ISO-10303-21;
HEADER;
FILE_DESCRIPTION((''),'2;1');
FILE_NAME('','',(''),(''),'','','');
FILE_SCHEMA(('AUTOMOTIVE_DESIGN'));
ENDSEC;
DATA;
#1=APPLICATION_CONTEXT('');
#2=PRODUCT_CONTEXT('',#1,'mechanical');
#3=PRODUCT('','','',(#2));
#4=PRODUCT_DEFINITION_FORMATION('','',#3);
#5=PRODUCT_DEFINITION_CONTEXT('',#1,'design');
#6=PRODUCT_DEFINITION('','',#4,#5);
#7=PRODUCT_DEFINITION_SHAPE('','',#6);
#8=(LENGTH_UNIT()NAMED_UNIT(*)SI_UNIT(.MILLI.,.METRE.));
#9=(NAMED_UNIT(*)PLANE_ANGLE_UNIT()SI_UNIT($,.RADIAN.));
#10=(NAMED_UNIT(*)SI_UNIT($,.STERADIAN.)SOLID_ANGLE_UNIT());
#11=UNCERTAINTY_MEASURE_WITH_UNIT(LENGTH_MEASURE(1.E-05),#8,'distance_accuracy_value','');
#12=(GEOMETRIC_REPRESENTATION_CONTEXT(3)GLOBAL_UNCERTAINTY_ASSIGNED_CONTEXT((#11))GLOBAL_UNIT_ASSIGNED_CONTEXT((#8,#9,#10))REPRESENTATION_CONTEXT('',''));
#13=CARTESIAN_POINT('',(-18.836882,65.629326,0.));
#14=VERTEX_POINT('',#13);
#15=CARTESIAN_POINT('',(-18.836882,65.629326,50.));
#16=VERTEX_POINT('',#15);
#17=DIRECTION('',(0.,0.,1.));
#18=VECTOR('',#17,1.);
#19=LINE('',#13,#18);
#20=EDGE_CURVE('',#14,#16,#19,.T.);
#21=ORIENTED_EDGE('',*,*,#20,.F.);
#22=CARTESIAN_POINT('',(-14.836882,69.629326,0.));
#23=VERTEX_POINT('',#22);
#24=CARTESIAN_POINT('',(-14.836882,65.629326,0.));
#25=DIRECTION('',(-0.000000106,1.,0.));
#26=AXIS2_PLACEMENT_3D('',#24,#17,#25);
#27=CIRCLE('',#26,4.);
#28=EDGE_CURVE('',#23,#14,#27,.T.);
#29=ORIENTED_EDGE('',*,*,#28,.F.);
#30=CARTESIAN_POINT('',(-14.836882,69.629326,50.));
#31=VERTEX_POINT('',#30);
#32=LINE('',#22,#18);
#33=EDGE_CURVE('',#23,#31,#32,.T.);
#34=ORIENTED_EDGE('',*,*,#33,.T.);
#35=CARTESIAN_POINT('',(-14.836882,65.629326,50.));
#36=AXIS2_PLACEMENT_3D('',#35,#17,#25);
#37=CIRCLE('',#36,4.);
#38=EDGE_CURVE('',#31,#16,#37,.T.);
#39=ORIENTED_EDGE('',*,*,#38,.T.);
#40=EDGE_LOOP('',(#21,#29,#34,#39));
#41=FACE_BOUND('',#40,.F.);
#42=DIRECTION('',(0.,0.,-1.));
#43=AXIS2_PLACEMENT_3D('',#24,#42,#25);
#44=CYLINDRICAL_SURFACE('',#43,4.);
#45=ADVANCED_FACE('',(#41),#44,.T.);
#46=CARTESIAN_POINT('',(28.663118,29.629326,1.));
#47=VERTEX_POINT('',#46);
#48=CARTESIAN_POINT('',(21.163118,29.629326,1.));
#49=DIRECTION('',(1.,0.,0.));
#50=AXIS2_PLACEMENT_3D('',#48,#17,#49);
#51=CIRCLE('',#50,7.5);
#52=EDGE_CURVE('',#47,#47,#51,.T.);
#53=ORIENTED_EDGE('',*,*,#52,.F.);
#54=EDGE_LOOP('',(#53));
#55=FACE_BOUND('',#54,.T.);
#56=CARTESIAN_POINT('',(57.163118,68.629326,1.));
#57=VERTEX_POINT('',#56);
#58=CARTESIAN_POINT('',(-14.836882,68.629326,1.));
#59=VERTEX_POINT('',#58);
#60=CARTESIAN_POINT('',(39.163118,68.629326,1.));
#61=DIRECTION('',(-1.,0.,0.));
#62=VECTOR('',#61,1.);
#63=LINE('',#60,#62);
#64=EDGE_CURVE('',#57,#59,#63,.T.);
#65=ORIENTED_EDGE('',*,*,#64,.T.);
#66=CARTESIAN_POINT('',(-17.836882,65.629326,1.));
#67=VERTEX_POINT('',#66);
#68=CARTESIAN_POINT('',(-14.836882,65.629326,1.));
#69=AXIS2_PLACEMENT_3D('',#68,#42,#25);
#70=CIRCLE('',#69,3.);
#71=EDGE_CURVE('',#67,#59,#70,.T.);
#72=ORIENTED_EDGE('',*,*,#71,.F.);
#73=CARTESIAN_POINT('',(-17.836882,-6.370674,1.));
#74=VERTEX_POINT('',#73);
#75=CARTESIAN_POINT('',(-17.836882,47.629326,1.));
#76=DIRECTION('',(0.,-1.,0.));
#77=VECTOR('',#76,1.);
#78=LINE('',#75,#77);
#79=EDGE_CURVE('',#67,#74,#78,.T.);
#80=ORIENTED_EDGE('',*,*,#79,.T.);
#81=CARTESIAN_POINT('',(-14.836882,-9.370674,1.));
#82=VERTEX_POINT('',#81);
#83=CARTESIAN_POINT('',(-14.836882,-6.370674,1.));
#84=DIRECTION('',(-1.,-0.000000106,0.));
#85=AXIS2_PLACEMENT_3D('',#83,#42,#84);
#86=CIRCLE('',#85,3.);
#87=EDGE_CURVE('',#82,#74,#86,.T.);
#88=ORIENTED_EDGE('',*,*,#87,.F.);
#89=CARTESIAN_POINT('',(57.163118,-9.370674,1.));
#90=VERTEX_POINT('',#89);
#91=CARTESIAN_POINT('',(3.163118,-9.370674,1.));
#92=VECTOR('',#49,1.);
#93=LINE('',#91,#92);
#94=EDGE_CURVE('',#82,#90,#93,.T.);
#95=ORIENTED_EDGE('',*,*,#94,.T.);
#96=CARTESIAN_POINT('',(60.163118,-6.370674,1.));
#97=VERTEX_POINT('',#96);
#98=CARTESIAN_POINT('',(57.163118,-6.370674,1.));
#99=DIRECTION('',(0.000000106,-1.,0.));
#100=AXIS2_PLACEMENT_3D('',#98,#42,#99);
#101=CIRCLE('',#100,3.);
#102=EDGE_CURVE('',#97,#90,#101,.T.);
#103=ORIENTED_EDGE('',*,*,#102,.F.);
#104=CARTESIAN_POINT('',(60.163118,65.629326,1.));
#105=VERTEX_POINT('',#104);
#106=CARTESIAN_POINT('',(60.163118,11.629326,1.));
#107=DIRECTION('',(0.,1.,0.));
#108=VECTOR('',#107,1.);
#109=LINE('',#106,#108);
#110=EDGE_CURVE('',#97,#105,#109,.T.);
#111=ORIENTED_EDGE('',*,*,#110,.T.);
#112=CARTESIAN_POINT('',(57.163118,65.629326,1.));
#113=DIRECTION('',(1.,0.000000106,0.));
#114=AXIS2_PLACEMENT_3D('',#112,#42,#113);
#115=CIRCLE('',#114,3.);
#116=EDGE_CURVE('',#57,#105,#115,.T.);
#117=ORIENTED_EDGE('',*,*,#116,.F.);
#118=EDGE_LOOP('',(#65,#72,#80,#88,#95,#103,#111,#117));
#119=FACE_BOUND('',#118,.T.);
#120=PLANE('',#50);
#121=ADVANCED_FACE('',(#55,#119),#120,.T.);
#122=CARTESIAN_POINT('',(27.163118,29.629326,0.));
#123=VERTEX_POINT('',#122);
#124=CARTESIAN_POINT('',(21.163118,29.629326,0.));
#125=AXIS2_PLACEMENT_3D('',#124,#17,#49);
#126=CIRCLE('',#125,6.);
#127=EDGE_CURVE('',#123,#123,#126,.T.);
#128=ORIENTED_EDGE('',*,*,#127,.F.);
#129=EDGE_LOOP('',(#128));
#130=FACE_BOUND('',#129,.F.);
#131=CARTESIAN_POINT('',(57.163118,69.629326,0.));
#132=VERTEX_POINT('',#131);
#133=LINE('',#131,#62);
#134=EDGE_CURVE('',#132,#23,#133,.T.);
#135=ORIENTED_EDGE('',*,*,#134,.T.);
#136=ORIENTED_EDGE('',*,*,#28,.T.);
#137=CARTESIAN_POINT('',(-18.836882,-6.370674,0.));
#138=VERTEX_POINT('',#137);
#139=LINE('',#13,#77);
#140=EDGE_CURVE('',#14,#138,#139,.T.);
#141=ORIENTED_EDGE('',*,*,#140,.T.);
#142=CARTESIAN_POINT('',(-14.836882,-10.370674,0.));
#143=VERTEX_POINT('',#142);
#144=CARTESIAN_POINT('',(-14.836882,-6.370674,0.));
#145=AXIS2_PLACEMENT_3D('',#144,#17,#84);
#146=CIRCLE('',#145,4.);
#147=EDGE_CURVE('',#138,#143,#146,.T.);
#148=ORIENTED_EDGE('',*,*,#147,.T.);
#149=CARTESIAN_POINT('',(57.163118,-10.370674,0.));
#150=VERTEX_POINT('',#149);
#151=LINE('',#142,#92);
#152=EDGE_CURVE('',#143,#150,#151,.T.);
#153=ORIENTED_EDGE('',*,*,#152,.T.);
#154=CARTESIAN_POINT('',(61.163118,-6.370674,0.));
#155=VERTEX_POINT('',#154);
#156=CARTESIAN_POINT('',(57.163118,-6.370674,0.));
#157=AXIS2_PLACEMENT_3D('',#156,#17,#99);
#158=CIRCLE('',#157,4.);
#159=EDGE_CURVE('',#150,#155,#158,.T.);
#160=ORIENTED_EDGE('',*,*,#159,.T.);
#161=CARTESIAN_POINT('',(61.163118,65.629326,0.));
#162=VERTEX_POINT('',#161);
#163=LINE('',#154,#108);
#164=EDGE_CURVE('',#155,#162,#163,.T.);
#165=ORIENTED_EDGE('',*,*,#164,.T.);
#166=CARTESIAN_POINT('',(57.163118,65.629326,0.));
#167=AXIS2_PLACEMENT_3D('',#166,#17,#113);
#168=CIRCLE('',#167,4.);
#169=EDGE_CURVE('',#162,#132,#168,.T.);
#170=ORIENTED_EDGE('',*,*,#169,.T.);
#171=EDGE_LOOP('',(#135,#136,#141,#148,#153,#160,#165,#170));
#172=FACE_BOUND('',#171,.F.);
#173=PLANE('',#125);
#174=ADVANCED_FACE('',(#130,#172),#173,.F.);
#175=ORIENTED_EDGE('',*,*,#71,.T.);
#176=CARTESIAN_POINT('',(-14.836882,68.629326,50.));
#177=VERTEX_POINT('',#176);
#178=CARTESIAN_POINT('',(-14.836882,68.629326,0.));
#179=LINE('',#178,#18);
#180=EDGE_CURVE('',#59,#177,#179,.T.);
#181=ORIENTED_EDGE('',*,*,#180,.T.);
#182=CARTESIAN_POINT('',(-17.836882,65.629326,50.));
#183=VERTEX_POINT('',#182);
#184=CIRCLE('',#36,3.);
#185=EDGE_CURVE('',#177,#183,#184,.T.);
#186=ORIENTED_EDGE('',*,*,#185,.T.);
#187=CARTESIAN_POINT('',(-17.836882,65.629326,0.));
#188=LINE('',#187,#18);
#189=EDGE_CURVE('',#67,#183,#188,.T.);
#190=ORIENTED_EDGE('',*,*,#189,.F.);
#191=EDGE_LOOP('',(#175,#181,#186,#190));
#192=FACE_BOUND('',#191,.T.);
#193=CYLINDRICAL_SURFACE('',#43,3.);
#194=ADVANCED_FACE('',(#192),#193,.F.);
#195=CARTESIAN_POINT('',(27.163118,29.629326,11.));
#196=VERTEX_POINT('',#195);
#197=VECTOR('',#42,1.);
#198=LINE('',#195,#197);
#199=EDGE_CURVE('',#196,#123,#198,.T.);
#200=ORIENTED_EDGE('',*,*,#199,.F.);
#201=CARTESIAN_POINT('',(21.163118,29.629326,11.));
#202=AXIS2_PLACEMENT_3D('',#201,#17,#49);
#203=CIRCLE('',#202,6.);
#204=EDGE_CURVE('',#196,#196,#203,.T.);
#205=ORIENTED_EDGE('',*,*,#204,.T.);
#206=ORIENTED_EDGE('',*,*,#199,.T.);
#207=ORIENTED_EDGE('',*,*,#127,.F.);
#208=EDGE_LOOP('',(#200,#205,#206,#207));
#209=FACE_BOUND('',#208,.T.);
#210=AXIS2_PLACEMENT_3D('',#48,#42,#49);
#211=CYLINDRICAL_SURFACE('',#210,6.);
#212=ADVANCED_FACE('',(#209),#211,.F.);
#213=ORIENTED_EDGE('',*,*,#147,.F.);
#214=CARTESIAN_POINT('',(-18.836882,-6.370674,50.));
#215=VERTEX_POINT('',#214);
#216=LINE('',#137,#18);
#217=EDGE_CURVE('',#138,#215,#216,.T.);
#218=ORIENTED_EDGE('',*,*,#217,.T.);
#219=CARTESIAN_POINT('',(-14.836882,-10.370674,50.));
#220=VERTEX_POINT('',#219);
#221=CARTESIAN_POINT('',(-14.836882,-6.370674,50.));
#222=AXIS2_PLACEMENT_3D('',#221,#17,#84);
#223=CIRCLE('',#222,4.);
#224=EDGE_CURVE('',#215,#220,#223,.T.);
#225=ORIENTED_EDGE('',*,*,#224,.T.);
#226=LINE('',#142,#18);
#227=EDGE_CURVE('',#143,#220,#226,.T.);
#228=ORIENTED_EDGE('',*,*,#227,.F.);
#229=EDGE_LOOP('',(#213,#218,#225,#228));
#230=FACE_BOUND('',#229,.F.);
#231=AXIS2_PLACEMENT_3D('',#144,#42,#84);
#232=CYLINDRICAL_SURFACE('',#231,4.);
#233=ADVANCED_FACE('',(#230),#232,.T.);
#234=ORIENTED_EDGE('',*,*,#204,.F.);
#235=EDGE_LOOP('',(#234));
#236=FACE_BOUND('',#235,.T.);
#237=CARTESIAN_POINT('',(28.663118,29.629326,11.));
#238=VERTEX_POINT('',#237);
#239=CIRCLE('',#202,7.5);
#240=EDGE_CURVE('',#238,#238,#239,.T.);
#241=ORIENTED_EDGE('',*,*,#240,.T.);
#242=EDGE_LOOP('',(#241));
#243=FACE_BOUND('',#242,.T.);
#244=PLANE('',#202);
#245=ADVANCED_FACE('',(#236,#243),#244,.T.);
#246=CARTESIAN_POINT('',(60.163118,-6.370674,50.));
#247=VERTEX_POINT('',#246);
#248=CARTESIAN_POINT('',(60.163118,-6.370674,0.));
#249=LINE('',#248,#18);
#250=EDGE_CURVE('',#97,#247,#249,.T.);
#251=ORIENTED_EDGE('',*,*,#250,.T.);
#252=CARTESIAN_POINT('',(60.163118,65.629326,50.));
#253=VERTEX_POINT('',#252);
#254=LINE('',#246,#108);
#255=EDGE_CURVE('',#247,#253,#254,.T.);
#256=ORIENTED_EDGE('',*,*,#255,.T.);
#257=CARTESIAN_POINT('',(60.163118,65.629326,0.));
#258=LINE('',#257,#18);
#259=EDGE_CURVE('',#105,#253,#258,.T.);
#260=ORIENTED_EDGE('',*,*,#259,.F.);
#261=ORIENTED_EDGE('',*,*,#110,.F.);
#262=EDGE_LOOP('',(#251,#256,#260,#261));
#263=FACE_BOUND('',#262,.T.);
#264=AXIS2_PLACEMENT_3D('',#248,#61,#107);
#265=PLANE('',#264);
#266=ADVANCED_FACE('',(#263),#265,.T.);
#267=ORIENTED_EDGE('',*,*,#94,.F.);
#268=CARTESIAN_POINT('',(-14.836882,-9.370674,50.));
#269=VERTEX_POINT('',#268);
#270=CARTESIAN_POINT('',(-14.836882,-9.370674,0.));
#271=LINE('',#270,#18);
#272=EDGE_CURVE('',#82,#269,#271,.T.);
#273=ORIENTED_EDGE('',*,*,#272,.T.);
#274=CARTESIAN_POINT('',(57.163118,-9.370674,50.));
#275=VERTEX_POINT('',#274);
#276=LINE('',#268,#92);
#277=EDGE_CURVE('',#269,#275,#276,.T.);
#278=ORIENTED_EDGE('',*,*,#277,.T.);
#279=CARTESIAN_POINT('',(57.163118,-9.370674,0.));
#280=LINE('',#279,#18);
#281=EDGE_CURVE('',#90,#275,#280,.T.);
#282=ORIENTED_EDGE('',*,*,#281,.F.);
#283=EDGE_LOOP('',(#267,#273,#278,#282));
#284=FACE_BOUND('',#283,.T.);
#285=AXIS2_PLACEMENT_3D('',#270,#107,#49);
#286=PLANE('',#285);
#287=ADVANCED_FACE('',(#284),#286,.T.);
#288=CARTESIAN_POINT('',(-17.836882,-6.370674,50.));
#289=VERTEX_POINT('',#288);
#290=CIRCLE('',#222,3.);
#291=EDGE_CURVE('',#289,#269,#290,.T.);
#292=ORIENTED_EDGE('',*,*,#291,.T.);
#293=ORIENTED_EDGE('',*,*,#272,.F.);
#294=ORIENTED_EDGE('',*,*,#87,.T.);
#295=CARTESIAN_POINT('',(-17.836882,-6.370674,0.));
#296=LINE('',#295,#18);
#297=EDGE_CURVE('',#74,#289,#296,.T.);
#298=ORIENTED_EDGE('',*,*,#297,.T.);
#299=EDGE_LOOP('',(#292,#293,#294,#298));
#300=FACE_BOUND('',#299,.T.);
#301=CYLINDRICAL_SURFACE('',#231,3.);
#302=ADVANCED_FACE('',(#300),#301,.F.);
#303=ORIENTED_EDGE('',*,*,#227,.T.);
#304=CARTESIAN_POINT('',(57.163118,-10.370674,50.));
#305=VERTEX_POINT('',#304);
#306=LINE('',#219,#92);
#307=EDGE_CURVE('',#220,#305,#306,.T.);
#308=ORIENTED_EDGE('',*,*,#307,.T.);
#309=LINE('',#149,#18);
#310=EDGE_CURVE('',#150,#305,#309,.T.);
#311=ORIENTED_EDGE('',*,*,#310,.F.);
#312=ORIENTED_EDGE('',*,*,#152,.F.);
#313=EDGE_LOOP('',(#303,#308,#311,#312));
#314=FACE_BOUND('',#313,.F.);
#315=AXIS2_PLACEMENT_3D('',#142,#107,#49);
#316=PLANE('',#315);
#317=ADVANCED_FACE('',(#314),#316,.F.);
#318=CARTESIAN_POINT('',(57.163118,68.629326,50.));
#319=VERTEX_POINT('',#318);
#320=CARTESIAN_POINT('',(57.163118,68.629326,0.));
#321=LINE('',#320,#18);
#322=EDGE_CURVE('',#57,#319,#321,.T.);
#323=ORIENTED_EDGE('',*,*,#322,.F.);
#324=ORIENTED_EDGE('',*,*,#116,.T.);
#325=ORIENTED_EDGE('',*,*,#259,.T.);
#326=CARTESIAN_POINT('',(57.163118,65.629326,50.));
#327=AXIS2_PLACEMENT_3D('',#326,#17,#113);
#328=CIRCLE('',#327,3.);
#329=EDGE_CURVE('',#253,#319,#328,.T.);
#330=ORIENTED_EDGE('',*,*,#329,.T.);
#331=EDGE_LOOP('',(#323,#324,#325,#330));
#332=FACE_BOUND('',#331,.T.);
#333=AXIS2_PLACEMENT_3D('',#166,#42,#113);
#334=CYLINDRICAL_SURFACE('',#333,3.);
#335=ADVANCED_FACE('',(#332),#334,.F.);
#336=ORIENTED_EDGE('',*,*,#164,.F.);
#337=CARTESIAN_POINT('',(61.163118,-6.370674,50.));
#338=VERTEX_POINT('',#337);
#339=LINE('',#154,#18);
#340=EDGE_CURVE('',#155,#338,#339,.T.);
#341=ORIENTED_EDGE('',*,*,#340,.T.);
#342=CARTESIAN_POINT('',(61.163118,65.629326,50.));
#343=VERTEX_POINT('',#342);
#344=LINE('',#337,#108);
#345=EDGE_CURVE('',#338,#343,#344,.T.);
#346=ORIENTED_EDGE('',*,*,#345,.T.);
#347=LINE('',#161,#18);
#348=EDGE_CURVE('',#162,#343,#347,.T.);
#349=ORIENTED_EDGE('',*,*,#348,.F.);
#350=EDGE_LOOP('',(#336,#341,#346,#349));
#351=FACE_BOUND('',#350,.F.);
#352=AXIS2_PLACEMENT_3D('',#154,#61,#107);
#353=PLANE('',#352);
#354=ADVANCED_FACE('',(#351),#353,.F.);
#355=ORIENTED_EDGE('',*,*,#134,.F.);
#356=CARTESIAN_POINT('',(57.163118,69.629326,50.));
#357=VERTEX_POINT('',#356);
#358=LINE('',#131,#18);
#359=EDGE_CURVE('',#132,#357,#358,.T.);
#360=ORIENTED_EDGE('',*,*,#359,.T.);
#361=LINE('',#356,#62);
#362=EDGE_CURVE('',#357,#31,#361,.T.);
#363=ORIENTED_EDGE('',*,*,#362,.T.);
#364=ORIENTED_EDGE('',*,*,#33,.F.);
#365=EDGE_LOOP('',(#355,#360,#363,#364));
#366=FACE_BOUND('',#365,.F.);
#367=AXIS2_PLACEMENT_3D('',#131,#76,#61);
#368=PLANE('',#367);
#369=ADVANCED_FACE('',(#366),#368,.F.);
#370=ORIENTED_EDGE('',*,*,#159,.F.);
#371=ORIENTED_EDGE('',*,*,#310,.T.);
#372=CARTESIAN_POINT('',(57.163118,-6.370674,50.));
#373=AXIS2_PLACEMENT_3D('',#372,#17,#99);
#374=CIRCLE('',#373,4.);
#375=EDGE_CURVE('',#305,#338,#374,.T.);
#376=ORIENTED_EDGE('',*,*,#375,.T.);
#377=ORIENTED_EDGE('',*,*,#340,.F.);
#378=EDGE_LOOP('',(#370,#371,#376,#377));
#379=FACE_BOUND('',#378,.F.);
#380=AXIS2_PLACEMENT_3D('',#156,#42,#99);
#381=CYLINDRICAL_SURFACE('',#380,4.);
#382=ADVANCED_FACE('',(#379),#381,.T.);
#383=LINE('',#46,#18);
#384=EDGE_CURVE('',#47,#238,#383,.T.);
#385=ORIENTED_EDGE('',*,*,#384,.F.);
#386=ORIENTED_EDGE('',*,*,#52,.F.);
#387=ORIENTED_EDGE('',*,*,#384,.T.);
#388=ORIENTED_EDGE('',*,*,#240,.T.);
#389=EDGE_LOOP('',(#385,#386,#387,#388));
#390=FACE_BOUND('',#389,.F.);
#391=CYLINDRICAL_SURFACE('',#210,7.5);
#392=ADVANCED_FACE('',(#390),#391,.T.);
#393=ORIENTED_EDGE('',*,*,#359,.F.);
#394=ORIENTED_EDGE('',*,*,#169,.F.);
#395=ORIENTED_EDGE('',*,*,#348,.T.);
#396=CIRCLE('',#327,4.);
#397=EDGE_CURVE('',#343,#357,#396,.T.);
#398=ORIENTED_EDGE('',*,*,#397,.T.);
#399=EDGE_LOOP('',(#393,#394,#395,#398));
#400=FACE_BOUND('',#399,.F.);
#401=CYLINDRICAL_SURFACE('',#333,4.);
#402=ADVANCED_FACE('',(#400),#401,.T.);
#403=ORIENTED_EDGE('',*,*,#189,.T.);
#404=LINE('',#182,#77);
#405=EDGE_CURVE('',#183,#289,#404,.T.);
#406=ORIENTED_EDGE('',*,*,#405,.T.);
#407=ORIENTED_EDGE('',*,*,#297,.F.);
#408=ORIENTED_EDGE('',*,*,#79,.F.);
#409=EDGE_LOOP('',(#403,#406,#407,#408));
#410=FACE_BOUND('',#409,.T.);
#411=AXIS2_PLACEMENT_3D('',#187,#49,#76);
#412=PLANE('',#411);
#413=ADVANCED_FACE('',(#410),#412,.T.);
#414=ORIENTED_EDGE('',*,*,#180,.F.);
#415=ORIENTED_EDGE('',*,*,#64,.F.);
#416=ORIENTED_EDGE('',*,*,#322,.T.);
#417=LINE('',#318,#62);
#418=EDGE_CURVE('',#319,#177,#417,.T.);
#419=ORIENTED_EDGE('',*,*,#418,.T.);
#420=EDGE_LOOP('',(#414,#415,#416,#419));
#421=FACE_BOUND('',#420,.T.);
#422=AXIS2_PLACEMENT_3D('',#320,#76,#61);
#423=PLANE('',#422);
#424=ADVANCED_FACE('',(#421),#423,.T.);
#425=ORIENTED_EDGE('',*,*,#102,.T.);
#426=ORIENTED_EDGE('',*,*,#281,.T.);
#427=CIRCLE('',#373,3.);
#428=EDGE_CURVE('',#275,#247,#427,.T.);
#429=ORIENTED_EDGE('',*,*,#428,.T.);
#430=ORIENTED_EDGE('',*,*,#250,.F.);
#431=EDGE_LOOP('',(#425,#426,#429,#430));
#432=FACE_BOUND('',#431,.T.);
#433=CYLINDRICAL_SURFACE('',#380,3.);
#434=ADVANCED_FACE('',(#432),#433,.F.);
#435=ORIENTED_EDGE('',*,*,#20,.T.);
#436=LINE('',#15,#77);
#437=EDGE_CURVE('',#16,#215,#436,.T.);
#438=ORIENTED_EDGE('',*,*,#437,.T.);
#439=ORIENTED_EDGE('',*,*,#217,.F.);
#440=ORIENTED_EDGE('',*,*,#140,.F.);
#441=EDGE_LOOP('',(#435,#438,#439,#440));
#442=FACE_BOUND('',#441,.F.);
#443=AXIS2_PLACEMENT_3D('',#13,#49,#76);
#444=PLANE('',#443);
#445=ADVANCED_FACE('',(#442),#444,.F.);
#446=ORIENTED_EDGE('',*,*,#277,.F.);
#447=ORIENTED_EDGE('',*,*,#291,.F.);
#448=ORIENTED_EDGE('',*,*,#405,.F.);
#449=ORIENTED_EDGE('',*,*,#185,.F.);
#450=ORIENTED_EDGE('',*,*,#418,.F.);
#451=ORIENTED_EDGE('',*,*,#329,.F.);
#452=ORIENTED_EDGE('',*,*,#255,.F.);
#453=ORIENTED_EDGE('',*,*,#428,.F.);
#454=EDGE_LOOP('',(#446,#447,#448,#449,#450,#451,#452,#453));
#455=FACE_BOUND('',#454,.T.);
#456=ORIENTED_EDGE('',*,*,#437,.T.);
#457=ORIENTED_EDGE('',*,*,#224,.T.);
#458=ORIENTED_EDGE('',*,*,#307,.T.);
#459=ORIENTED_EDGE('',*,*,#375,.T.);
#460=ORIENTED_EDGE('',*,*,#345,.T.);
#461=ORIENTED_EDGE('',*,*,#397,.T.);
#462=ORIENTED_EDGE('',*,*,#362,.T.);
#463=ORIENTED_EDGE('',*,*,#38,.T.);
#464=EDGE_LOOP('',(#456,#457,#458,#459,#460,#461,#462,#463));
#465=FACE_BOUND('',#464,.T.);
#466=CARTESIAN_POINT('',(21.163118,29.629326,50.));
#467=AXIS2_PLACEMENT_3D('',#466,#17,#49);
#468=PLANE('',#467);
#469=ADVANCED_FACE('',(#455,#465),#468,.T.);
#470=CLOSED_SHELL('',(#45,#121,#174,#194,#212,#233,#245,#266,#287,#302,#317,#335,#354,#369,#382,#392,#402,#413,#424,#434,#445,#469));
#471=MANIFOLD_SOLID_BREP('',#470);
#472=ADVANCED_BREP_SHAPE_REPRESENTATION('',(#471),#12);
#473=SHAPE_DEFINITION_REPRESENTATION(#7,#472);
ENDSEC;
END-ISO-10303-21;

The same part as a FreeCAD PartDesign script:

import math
import FreeCAD as App
import Part
import Sketcher

V = App.Vector


def faces_at(feature, points):
    """Names of the faces that lie closest to the given points."""
    faces = feature.Shape.Faces
    near = lambda p: min(range(len(faces)), key=lambda i: faces[i].distToShape(Part.Vertex(*p))[0])
    return sorted({f"Face{near(p) + 1}" for p in points})

doc = App.newDocument("Part")
body = doc.addObject("PartDesign::Body", "Body")

sketch1 = body.newObject("Sketcher::SketchObject", "Sketch")
sketch1.AttachmentSupport = (doc.getObject("XY_Plane"), [""])
sketch1.MapMode = "FlatFace"
sketch1.addGeometry([
    Part.LineSegment(V(57.2, 69.6, 0), V(-14.8, 69.6, 0)),
    Part.ArcOfCircle(Part.Circle(V(-14.8, 65.6, 0), V(0, 0, 1), 4), math.radians(90), math.radians(180)),
    Part.LineSegment(V(-18.8, 65.6, 0), V(-18.8, -6.4, 0)),
    Part.ArcOfCircle(Part.Circle(V(-14.8, -6.4, 0), V(0, 0, 1), 4), math.radians(-180), math.radians(-90)),
    Part.LineSegment(V(-14.8, -10.4, 0), V(57.2, -10.4, 0)),
    Part.ArcOfCircle(Part.Circle(V(57.2, -6.4, 0), V(0, 0, 1), 4), math.radians(-90), math.radians(0)),
    Part.LineSegment(V(61.2, -6.4, 0), V(61.2, 65.6, 0)),
    Part.ArcOfCircle(Part.Circle(V(57.2, 65.6, 0), V(0, 0, 1), 4), math.radians(0), math.radians(90)),
], False)
sketch1.addConstraint([
    Sketcher.Constraint("Tangent", 0, 2, 1, 1),
    Sketcher.Constraint("Tangent", 1, 2, 2, 1),
    Sketcher.Constraint("Tangent", 2, 2, 3, 1),
    Sketcher.Constraint("Tangent", 3, 2, 4, 1),
    Sketcher.Constraint("Tangent", 4, 2, 5, 1),
    Sketcher.Constraint("Tangent", 5, 2, 6, 1),
    Sketcher.Constraint("Tangent", 6, 2, 7, 1),
    Sketcher.Constraint("Tangent", 7, 2, 0, 1),
    Sketcher.Constraint("Horizontal", 0),
    Sketcher.Constraint("Vertical", 2),
    Sketcher.Constraint("Horizontal", 4),
    Sketcher.Constraint("Vertical", 6),
    Sketcher.Constraint("Equal", 1, 3),
    Sketcher.Constraint("Equal", 3, 5),
    Sketcher.Constraint("Equal", 5, 7),
    Sketcher.Constraint("Equal", 4, 2),
    Sketcher.Constraint("Radius", 1, 4.0),
    Sketcher.Constraint("DistanceX", 0, 2, 0, 1, 72.0),
    Sketcher.Constraint("DistanceX", 1, 3, -1, 1, 14.836882),
    Sketcher.Constraint("DistanceY", -1, 1, 1, 3, 65.629326),
])
pad1 = body.newObject("PartDesign::Pad", "Pad")
pad1.Profile = sketch1
pad1.Length = 50
doc.recompute()

thickness = body.newObject("PartDesign::Thickness", "Thickness")
thickness.Base = (pad1, faces_at(pad1, [(21.163, 29.629, 50)]))
thickness.Value = 1
thickness.Reversed = True
thickness.Join = "Arc"

sketch2 = body.newObject("Sketcher::SketchObject", "Sketch001")
sketch2.AttachmentSupport = (doc.getObject("XY_Plane"), [""])
sketch2.MapMode = "FlatFace"
sketch2.AttachmentOffset = App.Placement(V(0, 0, 1), App.Rotation())
sketch2.addGeometry(Part.Circle(V(21, 30, 0), V(0, 0, 1), 6), False)
sketch2.addConstraint([
    Sketcher.Constraint("Diameter", 0, 12.0),
    Sketcher.Constraint("DistanceX", -1, 1, 0, 3, 21.163118),
    Sketcher.Constraint("DistanceY", -1, 1, 0, 3, 29.629326),
])
pocket1 = body.newObject("PartDesign::Pocket", "Pocket")
pocket1.Profile = sketch2
pocket1.Type = "ThroughAll"

sketch3 = body.newObject("Sketcher::SketchObject", "Sketch002")
sketch3.AttachmentSupport = (doc.getObject("XY_Plane"), [""])
sketch3.MapMode = "FlatFace"
sketch3.AttachmentOffset = App.Placement(V(0, 0, 1), App.Rotation())
sketch3.addGeometry([
    Part.Circle(V(21, 30, 0), V(0, 0, 1), 8),
    Part.Circle(V(21, 30, 0), V(0, 0, 1), 6),
], False)
sketch3.addConstraint([
    Sketcher.Constraint("Coincident", 1, 3, 0, 3),
    Sketcher.Constraint("Diameter", 0, 15.0),
    Sketcher.Constraint("Diameter", 1, 12.0),
    Sketcher.Constraint("DistanceX", -1, 1, 0, 3, 21.163118),
    Sketcher.Constraint("DistanceY", -1, 1, 0, 3, 29.629326),
])
pad2 = body.newObject("PartDesign::Pad", "Pad001")
pad2.Profile = sketch3
pad2.Length = 10

doc.recompute()
